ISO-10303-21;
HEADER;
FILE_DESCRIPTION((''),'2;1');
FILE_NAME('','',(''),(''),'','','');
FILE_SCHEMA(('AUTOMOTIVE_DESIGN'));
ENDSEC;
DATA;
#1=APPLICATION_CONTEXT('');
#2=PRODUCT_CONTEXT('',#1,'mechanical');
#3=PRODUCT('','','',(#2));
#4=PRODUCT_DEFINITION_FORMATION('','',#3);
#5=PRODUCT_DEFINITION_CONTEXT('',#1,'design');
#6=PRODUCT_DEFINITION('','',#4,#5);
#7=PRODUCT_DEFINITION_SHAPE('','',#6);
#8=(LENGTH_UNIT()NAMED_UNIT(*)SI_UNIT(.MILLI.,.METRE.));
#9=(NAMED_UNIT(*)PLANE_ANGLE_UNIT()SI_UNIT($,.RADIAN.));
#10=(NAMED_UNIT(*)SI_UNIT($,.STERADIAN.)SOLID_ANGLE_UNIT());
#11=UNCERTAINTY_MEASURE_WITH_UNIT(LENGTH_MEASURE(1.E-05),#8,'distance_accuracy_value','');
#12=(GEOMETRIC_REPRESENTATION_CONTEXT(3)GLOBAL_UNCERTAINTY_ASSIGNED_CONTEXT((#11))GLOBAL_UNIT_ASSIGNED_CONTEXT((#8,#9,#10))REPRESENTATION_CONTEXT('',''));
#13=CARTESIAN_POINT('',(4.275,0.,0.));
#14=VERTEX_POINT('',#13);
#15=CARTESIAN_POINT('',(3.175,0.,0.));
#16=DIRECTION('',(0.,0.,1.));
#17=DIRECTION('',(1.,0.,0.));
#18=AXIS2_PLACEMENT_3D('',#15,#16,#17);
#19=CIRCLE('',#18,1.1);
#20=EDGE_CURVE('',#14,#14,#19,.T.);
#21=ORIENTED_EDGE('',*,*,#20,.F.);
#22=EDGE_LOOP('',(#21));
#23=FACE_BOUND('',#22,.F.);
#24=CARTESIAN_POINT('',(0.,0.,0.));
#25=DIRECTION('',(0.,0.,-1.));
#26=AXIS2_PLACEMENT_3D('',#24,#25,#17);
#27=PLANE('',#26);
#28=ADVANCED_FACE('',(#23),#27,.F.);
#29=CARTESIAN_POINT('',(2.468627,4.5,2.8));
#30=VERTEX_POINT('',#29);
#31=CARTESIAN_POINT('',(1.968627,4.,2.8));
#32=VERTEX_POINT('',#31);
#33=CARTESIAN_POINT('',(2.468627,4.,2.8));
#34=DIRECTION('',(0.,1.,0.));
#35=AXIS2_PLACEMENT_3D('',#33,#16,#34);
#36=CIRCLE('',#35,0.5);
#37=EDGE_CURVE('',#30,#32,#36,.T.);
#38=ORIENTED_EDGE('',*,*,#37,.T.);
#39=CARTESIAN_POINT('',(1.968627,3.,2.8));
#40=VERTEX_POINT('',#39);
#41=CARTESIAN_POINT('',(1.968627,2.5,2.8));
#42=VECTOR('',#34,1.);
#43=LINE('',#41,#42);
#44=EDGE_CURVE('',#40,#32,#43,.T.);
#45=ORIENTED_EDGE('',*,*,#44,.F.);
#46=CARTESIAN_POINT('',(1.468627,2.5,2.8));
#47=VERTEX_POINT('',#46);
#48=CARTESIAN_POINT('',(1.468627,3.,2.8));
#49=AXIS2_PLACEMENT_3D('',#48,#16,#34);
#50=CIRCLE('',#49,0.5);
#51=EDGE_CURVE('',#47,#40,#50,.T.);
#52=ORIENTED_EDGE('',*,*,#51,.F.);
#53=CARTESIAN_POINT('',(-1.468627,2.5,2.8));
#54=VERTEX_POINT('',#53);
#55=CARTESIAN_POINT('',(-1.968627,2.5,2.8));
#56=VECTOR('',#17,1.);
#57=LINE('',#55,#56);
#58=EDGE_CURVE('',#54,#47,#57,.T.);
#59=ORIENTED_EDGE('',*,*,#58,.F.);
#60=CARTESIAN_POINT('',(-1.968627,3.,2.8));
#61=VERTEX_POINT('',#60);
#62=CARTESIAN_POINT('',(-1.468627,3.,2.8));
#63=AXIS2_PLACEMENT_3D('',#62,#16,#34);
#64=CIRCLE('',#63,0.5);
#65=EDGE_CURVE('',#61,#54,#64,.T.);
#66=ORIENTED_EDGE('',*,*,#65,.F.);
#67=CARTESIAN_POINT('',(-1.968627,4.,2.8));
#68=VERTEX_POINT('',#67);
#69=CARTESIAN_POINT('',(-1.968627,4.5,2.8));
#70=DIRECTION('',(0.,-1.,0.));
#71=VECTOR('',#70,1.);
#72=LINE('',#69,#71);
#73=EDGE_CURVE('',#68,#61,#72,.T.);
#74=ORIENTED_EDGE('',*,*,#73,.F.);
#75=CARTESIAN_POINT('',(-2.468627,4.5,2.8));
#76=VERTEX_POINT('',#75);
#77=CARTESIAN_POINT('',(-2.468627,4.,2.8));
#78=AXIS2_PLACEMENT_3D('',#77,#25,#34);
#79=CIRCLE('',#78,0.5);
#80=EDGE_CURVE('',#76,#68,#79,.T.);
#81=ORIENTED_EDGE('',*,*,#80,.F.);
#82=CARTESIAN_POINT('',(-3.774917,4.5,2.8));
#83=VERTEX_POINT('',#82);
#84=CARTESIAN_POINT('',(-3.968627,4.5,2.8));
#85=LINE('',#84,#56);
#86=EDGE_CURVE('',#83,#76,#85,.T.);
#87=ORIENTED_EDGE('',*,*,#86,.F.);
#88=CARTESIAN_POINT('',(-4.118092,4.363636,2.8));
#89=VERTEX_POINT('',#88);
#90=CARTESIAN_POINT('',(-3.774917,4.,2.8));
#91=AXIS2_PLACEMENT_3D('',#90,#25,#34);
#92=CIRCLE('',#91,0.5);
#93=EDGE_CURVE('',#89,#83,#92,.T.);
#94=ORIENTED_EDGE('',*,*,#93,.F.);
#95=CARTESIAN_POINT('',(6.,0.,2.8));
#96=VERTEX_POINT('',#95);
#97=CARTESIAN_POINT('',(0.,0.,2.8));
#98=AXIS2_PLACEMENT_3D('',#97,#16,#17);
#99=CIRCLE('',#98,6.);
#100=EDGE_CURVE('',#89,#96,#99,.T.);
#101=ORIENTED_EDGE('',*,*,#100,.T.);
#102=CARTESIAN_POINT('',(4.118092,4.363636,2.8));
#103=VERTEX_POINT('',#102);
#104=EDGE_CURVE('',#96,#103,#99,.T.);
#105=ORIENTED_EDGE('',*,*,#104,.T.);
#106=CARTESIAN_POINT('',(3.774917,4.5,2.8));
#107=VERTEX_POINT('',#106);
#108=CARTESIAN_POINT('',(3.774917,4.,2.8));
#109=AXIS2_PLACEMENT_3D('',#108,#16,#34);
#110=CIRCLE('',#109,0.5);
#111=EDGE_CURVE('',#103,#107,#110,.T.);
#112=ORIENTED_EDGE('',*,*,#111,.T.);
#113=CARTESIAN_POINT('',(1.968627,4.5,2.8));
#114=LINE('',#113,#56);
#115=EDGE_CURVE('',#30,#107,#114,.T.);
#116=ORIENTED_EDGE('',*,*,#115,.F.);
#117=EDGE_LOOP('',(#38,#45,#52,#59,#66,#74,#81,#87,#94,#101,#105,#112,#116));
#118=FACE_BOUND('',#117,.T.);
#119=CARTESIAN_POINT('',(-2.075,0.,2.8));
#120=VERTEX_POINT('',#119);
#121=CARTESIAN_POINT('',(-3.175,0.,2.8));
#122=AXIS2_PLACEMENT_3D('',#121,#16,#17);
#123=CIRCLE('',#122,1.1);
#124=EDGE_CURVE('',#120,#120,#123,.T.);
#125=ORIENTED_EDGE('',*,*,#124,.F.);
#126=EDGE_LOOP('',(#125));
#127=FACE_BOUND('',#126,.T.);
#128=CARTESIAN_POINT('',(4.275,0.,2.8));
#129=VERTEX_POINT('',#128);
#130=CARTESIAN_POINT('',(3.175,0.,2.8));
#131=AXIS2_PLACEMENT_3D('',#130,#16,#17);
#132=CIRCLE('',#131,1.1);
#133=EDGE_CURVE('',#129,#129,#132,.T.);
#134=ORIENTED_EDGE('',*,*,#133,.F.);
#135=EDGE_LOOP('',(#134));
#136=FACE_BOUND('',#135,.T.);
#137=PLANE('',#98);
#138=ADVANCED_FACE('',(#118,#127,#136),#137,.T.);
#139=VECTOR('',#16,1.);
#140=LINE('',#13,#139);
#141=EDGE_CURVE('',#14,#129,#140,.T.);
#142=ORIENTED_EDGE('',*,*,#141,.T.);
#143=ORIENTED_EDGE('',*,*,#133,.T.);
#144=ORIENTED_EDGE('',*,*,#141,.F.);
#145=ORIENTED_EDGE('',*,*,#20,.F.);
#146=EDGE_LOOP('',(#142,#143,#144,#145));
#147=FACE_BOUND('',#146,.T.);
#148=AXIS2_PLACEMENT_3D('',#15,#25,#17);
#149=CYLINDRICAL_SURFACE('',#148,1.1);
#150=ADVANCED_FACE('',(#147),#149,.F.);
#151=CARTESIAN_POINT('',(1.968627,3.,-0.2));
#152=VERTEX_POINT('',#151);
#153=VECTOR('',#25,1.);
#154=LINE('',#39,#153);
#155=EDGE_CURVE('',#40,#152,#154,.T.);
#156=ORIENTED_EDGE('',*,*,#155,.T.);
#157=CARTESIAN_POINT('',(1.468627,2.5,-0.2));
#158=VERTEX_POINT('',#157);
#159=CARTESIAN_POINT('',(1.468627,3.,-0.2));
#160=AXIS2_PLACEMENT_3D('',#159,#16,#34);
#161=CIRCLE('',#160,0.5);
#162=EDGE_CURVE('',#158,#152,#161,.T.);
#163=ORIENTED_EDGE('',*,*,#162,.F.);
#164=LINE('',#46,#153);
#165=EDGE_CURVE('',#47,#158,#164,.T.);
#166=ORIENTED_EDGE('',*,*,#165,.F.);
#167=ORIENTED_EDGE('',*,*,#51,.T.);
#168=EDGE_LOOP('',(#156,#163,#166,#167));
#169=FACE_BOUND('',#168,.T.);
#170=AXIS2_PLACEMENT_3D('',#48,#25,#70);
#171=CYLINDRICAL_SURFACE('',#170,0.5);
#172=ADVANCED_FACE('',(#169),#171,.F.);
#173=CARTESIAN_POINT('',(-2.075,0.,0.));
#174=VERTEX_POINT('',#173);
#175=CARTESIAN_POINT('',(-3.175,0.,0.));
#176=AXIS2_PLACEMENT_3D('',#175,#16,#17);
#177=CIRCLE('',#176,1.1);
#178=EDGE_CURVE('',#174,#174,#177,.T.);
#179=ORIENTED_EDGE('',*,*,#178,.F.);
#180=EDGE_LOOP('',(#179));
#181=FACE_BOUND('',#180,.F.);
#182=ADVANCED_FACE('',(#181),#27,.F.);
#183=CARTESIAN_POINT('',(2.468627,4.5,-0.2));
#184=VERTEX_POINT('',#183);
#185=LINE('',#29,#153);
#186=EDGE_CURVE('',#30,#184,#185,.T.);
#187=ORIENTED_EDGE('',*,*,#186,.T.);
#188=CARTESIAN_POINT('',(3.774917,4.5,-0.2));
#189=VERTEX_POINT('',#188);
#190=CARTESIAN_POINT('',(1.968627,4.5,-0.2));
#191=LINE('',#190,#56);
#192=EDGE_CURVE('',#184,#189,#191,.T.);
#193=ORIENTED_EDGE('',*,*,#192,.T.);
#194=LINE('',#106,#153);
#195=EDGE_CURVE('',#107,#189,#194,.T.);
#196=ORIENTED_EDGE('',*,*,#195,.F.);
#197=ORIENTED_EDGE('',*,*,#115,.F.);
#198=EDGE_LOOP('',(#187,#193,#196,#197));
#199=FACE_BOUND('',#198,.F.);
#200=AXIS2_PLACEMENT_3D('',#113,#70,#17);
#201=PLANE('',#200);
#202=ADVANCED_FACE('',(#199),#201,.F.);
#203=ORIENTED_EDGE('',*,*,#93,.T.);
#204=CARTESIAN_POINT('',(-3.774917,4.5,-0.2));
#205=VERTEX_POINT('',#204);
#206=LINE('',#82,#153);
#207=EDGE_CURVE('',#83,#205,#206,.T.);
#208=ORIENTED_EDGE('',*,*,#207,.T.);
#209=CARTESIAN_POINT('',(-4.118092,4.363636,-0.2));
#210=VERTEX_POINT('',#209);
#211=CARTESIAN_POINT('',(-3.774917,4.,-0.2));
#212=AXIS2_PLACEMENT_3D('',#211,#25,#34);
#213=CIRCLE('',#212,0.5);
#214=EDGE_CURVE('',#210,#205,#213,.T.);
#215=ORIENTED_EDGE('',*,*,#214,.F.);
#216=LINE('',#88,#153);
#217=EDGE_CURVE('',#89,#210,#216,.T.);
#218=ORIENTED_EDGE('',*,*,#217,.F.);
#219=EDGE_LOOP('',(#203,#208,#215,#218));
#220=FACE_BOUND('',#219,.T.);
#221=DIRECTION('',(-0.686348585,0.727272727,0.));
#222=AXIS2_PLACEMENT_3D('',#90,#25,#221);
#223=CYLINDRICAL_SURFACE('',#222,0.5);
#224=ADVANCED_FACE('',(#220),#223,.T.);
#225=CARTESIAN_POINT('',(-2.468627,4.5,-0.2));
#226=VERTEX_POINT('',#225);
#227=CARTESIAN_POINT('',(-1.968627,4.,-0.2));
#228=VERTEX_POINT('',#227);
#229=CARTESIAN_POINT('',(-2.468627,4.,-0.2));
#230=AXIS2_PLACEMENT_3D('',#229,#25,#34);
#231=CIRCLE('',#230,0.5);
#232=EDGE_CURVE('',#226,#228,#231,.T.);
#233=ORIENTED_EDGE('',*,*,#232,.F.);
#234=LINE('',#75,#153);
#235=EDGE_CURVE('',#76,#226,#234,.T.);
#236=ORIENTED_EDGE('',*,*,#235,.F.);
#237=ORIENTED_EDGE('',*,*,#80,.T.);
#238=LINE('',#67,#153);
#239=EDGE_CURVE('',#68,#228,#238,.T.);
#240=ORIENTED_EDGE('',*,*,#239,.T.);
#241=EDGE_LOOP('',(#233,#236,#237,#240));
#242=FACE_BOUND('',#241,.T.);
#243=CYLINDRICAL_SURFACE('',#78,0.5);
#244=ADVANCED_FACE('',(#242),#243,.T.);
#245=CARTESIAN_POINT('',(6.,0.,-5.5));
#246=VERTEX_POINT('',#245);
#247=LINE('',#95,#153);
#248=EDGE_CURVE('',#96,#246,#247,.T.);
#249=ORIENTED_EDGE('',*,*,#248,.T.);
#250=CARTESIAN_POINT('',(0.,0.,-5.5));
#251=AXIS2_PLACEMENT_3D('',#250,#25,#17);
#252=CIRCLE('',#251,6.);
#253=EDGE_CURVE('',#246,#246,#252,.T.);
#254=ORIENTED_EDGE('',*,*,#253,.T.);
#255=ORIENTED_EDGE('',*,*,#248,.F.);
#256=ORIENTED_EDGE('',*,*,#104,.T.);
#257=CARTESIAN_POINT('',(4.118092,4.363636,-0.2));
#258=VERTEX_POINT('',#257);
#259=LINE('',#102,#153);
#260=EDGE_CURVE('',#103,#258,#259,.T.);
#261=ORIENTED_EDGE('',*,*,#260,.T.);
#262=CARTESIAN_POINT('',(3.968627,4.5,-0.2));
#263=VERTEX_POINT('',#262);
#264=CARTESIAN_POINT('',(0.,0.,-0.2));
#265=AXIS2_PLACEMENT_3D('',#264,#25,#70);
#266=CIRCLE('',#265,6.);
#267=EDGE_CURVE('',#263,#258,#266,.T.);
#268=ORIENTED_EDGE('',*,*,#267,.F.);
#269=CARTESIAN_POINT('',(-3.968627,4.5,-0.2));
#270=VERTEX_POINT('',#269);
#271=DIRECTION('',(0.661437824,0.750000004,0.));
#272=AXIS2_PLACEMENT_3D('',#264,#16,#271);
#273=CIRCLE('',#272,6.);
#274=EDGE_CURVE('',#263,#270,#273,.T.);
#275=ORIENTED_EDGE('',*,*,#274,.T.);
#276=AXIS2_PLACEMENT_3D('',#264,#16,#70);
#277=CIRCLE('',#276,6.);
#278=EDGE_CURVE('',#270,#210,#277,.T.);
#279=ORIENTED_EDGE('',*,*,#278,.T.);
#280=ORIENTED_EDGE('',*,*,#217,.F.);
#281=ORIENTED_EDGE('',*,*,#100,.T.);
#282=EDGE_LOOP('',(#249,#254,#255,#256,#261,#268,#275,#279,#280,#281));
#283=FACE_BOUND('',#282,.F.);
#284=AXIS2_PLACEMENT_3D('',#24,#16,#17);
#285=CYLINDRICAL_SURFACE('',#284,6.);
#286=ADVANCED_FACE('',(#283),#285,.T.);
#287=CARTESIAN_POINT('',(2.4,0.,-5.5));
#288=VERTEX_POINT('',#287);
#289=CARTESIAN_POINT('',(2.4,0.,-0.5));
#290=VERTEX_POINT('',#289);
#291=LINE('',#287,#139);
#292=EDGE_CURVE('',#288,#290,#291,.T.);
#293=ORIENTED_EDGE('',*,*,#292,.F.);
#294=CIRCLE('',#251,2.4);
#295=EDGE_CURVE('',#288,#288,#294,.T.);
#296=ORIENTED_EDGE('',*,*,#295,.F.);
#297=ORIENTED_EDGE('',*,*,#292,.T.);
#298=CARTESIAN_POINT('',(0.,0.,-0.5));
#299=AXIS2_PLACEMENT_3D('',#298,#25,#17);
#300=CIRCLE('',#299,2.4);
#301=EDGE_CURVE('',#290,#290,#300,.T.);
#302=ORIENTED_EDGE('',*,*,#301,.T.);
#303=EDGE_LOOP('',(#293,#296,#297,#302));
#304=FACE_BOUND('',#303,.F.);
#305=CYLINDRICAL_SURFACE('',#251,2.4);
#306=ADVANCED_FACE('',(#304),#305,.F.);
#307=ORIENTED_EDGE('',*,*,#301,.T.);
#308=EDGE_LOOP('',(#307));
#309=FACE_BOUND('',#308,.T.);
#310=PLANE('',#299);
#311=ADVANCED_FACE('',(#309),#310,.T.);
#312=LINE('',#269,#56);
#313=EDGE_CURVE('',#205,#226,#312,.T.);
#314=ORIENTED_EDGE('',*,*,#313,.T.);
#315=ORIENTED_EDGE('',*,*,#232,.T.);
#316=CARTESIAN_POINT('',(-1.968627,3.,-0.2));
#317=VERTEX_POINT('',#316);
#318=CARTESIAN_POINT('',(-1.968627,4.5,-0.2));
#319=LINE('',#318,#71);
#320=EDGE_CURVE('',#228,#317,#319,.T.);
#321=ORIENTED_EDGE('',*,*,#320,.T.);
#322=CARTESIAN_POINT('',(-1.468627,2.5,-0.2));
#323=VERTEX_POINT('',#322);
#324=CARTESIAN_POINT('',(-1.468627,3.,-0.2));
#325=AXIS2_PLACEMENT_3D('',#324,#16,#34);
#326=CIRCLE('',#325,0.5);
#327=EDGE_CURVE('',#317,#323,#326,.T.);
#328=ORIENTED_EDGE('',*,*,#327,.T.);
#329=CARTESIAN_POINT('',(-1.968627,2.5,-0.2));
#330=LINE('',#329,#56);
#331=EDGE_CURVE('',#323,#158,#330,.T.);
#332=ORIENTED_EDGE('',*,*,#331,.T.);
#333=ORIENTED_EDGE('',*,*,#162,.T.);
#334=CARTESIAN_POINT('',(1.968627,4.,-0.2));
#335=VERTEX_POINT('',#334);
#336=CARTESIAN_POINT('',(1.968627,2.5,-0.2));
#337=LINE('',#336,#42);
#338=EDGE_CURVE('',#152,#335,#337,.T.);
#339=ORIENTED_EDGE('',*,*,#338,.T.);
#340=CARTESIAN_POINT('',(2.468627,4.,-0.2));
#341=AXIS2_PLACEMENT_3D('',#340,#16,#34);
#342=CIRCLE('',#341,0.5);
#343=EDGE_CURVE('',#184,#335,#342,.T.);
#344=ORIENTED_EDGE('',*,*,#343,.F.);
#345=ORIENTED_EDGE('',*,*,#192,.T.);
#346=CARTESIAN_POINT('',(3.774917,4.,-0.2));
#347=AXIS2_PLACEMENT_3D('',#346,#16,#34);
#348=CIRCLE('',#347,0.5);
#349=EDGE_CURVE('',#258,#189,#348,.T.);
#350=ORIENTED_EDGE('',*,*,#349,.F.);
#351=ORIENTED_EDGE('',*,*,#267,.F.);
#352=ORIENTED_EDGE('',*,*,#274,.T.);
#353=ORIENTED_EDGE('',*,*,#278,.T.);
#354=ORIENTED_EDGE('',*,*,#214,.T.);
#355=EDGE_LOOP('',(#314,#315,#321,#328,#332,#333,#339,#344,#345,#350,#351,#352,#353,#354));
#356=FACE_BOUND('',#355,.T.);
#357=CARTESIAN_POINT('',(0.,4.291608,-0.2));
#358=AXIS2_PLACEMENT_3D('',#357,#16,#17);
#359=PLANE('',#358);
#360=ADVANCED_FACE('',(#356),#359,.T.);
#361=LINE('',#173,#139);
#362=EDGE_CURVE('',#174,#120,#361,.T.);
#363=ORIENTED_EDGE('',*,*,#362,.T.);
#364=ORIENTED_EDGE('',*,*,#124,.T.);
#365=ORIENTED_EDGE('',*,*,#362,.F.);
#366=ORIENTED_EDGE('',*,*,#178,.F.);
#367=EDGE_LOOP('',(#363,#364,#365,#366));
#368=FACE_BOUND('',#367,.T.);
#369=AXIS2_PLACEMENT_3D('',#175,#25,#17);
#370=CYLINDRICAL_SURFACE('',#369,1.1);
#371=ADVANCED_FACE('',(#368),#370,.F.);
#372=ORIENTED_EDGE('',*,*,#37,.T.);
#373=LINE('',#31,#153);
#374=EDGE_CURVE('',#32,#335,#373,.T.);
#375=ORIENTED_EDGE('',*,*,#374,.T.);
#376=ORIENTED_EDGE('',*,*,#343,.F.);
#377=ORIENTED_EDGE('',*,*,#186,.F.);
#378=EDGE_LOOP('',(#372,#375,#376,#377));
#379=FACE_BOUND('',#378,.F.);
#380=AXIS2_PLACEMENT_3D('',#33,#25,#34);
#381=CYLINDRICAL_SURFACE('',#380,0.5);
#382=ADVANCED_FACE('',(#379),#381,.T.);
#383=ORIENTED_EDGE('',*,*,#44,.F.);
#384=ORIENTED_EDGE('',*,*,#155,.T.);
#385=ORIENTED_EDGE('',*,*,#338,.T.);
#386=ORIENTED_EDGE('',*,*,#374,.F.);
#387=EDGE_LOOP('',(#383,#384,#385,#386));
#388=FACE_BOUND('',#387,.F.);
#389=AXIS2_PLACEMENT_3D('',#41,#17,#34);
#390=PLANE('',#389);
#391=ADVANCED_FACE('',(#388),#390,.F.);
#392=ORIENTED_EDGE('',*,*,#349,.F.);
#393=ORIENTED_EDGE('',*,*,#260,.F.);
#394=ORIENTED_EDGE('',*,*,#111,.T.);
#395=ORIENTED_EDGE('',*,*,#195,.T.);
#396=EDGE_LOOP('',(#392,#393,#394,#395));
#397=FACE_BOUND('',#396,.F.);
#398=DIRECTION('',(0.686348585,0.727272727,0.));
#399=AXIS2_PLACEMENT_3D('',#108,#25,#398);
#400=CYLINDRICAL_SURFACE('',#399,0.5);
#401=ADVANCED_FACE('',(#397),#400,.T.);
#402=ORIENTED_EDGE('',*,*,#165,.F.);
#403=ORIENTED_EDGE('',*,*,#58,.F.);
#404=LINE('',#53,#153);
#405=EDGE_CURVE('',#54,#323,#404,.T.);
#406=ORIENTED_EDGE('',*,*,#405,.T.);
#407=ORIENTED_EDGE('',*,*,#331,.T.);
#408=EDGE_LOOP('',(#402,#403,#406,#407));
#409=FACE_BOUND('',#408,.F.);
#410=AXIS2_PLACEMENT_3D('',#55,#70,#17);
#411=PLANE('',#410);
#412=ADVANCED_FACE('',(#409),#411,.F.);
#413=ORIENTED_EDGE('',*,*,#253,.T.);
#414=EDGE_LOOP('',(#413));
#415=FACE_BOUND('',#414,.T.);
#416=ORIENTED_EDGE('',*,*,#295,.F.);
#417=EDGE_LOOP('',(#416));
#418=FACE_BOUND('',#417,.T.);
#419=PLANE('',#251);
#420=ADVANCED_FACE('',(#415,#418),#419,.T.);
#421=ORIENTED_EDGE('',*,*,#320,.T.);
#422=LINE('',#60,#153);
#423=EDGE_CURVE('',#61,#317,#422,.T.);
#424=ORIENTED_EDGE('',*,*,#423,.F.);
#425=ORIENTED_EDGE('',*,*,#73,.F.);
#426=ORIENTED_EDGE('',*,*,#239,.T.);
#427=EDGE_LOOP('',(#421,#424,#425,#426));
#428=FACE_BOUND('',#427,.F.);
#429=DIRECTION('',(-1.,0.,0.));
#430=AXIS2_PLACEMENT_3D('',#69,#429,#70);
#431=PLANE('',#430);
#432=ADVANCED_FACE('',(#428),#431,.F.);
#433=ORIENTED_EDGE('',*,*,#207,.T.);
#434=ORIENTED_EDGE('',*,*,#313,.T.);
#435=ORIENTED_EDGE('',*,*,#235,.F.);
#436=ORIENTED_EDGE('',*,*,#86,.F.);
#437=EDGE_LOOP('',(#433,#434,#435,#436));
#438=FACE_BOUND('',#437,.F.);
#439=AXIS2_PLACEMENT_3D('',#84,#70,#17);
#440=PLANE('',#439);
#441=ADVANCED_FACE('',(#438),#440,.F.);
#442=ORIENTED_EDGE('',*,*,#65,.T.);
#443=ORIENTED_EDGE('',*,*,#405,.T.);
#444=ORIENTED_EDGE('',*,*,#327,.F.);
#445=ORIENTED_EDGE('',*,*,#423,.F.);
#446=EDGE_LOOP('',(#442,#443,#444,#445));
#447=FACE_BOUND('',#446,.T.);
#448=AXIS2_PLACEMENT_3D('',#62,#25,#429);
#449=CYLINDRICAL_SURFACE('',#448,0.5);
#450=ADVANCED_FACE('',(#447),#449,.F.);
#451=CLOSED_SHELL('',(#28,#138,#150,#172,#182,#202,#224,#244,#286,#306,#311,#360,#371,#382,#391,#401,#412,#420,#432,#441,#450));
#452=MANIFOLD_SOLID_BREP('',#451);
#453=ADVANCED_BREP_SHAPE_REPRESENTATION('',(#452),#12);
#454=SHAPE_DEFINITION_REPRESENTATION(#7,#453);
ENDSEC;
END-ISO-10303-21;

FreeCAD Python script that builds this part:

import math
import FreeCAD as App
import Part
import Sketcher

V = App.Vector


def edges_at(feature, points):
    """Names of the edges that pass closest to the given points."""
    edges = feature.Shape.Edges
    near = lambda p: min(range(len(edges)), key=lambda i: edges[i].distToShape(Part.Vertex(*p))[0])
    return sorted({f"Edge{near(p) + 1}" for p in points})

doc = App.newDocument("Part")
body = doc.addObject("PartDesign::Body", "Body")

# Sketch on XY plane
sketch1 = doc.addObject("Sketcher::SketchObject", "Sketch")
body.addObject(sketch1)
sketch1.AttachmentSupport = (doc.XY_Plane, [""])
sketch1.MapMode = "FlatFace"
sketch1.addGeometry([
    Part.Circle(V(0, 0, 0), V(0, 0, 1), 6),
    Part.Circle(V(-3.175, 0, 0), V(0, 0, 1), 1.1),
    Part.Circle(V(3.175, 0, 0), V(0, 0, 1), 1.1),
], False)
sketch1.addConstraint([
    Sketcher.Constraint("Coincident", 0, 3, -1, 1),
    Sketcher.Constraint("Equal", 1, 2),
    Sketcher.Constraint("Symmetric", 1, 3, 2, 3, -1, 1),
    Sketcher.Constraint("PointOnObject", 1, 3, -1),
    Sketcher.Constraint("Diameter", 0, 12.0),
    Sketcher.Constraint("Diameter", 1, 2.2),
    Sketcher.Constraint("DistanceX", 1, 3, 2, 3, 6.35),
])
pad1 = doc.addObject("PartDesign::Pad", "Pad")
body.addObject(pad1)
pad1.Profile = sketch1
pad1.Length = 2.8

# Sketch on XY plane
sketch2 = doc.addObject("Sketcher::SketchObject", "Sketch001")
body.addObject(sketch2)
sketch2.AttachmentSupport = (doc.XY_Plane, [""])
sketch2.MapMode = "FlatFace"
sketch2.addGeometry(Part.Circle(V(0, 0, 0), V(0, 0, 1), 6), False)
sketch2.addConstraint([
    Sketcher.Constraint("Coincident", 0, 3, -1, 1),
    Sketcher.Constraint("Diameter", 0, 12.0),
])
pad2 = doc.addObject("PartDesign::Pad", "Pad001")
body.addObject(pad2)
pad2.Profile = sketch2
pad2.Length = 5.5
pad2.Reversed = True

# Sketch on XY plane
sketch3 = doc.addObject("Sketcher::SketchObject", "Sketch002")
body.addObject(sketch3)
sketch3.AttachmentSupport = (doc.XY_Plane, [""])
sketch3.MapMode = "FlatFace"
sketch3.AttachmentOffset = App.Placement(V(0, 0, 2.8), App.Rotation())
sketch3.addGeometry([
    Part.ArcOfCircle(Part.Circle(V(0, 0, 0), V(0, 0, 1), 6), math.radians(48.590378), math.radians(131.409622)),  # 0
    Part.LineSegment(V(-3.968627, 4.5, 0), V(-1.968627, 4.5, 0)),  # 1
    Part.LineSegment(V(-1.968627, 4.5, 0), V(-1.968627, 2.5, 0)),  # 2
    Part.LineSegment(V(-1.968627, 2.5, 0), V(1.968627, 2.5, 0)),  # 3
    Part.LineSegment(V(1.968627, 2.5, 0), V(1.968627, 4.5, 0)),  # 4
    Part.LineSegment(V(1.968627, 4.5, 0), V(3.968627, 4.5, 0)),  # 5
], False)
sketch3.addConstraint([
    Sketcher.Constraint("Coincident", 0, 2, 1, 1),
    Sketcher.Constraint("Coincident", 1, 2, 2, 1),
    Sketcher.Constraint("Coincident", 2, 2, 3, 1),
    Sketcher.Constraint("Coincident", 3, 2, 4, 1),
    Sketcher.Constraint("Coincident", 4, 2, 5, 1),
    Sketcher.Constraint("Coincident", 5, 2, 0, 1),
    Sketcher.Constraint("Horizontal", 1),
    Sketcher.Constraint("Vertical", 2),
    Sketcher.Constraint("Horizontal", 3),
    Sketcher.Constraint("Vertical", 4),
    Sketcher.Constraint("Horizontal", 5),
    Sketcher.Constraint("Coincident", 0, 3, -1, 1),
    Sketcher.Constraint("Symmetric", 1, 2, 4, 2, -2),
    Sketcher.Constraint("Equal", 5, 2),
    Sketcher.Constraint("Radius", 0, 6.0),
    Sketcher.Constraint("DistanceX", 1, 1, 1, 2, 2.0),
    Sketcher.Constraint("DistanceY", -1, 1, 0, 2, 4.5),
])
pocket1 = doc.addObject("PartDesign::Pocket", "Pocket")
body.addObject(pocket1)
pocket1.Profile = sketch3
pocket1.Length = 3
doc.recompute()

fillet = doc.addObject("PartDesign::Fillet", "Fillet")
body.addObject(fillet)
fillet.Base = (pocket1, edges_at(pocket1, [
    (-3.969, 4.5, 1.3),
    (-1.969, 4.5, 1.3),
    (1.969, 2.5, 1.3),
    (1.969, 4.5, 1.3),
    (3.969, 4.5, 1.3),
    (-1.969, 2.5, 1.3),
]))
fillet.Radius = 0.5

# Sketch on XY plane
sketch4 = doc.addObject("Sketcher::SketchObject", "Sketch003")
body.addObject(sketch4)
sketch4.AttachmentSupport = (doc.XY_Plane, [""])
sketch4.MapMode = "FlatFace"
sketch4.AttachmentOffset = App.Placement(V(0, 0, -5.5), App.Rotation())
sketch4.addGeometry(Part.Circle(V(0, 0, 0), V(0, 0, 1), 2.4), False)
sketch4.addConstraint([
    Sketcher.Constraint("Coincident", 0, 3, -1, 1),
    Sketcher.Constraint("Diameter", 0, 4.8),
])
pocket2 = doc.addObject("PartDesign::Pocket", "Pocket001")
body.addObject(pocket2)
pocket2.Profile = sketch4
pocket2.Length = 5
pocket2.Reversed = True

doc.recompute()
